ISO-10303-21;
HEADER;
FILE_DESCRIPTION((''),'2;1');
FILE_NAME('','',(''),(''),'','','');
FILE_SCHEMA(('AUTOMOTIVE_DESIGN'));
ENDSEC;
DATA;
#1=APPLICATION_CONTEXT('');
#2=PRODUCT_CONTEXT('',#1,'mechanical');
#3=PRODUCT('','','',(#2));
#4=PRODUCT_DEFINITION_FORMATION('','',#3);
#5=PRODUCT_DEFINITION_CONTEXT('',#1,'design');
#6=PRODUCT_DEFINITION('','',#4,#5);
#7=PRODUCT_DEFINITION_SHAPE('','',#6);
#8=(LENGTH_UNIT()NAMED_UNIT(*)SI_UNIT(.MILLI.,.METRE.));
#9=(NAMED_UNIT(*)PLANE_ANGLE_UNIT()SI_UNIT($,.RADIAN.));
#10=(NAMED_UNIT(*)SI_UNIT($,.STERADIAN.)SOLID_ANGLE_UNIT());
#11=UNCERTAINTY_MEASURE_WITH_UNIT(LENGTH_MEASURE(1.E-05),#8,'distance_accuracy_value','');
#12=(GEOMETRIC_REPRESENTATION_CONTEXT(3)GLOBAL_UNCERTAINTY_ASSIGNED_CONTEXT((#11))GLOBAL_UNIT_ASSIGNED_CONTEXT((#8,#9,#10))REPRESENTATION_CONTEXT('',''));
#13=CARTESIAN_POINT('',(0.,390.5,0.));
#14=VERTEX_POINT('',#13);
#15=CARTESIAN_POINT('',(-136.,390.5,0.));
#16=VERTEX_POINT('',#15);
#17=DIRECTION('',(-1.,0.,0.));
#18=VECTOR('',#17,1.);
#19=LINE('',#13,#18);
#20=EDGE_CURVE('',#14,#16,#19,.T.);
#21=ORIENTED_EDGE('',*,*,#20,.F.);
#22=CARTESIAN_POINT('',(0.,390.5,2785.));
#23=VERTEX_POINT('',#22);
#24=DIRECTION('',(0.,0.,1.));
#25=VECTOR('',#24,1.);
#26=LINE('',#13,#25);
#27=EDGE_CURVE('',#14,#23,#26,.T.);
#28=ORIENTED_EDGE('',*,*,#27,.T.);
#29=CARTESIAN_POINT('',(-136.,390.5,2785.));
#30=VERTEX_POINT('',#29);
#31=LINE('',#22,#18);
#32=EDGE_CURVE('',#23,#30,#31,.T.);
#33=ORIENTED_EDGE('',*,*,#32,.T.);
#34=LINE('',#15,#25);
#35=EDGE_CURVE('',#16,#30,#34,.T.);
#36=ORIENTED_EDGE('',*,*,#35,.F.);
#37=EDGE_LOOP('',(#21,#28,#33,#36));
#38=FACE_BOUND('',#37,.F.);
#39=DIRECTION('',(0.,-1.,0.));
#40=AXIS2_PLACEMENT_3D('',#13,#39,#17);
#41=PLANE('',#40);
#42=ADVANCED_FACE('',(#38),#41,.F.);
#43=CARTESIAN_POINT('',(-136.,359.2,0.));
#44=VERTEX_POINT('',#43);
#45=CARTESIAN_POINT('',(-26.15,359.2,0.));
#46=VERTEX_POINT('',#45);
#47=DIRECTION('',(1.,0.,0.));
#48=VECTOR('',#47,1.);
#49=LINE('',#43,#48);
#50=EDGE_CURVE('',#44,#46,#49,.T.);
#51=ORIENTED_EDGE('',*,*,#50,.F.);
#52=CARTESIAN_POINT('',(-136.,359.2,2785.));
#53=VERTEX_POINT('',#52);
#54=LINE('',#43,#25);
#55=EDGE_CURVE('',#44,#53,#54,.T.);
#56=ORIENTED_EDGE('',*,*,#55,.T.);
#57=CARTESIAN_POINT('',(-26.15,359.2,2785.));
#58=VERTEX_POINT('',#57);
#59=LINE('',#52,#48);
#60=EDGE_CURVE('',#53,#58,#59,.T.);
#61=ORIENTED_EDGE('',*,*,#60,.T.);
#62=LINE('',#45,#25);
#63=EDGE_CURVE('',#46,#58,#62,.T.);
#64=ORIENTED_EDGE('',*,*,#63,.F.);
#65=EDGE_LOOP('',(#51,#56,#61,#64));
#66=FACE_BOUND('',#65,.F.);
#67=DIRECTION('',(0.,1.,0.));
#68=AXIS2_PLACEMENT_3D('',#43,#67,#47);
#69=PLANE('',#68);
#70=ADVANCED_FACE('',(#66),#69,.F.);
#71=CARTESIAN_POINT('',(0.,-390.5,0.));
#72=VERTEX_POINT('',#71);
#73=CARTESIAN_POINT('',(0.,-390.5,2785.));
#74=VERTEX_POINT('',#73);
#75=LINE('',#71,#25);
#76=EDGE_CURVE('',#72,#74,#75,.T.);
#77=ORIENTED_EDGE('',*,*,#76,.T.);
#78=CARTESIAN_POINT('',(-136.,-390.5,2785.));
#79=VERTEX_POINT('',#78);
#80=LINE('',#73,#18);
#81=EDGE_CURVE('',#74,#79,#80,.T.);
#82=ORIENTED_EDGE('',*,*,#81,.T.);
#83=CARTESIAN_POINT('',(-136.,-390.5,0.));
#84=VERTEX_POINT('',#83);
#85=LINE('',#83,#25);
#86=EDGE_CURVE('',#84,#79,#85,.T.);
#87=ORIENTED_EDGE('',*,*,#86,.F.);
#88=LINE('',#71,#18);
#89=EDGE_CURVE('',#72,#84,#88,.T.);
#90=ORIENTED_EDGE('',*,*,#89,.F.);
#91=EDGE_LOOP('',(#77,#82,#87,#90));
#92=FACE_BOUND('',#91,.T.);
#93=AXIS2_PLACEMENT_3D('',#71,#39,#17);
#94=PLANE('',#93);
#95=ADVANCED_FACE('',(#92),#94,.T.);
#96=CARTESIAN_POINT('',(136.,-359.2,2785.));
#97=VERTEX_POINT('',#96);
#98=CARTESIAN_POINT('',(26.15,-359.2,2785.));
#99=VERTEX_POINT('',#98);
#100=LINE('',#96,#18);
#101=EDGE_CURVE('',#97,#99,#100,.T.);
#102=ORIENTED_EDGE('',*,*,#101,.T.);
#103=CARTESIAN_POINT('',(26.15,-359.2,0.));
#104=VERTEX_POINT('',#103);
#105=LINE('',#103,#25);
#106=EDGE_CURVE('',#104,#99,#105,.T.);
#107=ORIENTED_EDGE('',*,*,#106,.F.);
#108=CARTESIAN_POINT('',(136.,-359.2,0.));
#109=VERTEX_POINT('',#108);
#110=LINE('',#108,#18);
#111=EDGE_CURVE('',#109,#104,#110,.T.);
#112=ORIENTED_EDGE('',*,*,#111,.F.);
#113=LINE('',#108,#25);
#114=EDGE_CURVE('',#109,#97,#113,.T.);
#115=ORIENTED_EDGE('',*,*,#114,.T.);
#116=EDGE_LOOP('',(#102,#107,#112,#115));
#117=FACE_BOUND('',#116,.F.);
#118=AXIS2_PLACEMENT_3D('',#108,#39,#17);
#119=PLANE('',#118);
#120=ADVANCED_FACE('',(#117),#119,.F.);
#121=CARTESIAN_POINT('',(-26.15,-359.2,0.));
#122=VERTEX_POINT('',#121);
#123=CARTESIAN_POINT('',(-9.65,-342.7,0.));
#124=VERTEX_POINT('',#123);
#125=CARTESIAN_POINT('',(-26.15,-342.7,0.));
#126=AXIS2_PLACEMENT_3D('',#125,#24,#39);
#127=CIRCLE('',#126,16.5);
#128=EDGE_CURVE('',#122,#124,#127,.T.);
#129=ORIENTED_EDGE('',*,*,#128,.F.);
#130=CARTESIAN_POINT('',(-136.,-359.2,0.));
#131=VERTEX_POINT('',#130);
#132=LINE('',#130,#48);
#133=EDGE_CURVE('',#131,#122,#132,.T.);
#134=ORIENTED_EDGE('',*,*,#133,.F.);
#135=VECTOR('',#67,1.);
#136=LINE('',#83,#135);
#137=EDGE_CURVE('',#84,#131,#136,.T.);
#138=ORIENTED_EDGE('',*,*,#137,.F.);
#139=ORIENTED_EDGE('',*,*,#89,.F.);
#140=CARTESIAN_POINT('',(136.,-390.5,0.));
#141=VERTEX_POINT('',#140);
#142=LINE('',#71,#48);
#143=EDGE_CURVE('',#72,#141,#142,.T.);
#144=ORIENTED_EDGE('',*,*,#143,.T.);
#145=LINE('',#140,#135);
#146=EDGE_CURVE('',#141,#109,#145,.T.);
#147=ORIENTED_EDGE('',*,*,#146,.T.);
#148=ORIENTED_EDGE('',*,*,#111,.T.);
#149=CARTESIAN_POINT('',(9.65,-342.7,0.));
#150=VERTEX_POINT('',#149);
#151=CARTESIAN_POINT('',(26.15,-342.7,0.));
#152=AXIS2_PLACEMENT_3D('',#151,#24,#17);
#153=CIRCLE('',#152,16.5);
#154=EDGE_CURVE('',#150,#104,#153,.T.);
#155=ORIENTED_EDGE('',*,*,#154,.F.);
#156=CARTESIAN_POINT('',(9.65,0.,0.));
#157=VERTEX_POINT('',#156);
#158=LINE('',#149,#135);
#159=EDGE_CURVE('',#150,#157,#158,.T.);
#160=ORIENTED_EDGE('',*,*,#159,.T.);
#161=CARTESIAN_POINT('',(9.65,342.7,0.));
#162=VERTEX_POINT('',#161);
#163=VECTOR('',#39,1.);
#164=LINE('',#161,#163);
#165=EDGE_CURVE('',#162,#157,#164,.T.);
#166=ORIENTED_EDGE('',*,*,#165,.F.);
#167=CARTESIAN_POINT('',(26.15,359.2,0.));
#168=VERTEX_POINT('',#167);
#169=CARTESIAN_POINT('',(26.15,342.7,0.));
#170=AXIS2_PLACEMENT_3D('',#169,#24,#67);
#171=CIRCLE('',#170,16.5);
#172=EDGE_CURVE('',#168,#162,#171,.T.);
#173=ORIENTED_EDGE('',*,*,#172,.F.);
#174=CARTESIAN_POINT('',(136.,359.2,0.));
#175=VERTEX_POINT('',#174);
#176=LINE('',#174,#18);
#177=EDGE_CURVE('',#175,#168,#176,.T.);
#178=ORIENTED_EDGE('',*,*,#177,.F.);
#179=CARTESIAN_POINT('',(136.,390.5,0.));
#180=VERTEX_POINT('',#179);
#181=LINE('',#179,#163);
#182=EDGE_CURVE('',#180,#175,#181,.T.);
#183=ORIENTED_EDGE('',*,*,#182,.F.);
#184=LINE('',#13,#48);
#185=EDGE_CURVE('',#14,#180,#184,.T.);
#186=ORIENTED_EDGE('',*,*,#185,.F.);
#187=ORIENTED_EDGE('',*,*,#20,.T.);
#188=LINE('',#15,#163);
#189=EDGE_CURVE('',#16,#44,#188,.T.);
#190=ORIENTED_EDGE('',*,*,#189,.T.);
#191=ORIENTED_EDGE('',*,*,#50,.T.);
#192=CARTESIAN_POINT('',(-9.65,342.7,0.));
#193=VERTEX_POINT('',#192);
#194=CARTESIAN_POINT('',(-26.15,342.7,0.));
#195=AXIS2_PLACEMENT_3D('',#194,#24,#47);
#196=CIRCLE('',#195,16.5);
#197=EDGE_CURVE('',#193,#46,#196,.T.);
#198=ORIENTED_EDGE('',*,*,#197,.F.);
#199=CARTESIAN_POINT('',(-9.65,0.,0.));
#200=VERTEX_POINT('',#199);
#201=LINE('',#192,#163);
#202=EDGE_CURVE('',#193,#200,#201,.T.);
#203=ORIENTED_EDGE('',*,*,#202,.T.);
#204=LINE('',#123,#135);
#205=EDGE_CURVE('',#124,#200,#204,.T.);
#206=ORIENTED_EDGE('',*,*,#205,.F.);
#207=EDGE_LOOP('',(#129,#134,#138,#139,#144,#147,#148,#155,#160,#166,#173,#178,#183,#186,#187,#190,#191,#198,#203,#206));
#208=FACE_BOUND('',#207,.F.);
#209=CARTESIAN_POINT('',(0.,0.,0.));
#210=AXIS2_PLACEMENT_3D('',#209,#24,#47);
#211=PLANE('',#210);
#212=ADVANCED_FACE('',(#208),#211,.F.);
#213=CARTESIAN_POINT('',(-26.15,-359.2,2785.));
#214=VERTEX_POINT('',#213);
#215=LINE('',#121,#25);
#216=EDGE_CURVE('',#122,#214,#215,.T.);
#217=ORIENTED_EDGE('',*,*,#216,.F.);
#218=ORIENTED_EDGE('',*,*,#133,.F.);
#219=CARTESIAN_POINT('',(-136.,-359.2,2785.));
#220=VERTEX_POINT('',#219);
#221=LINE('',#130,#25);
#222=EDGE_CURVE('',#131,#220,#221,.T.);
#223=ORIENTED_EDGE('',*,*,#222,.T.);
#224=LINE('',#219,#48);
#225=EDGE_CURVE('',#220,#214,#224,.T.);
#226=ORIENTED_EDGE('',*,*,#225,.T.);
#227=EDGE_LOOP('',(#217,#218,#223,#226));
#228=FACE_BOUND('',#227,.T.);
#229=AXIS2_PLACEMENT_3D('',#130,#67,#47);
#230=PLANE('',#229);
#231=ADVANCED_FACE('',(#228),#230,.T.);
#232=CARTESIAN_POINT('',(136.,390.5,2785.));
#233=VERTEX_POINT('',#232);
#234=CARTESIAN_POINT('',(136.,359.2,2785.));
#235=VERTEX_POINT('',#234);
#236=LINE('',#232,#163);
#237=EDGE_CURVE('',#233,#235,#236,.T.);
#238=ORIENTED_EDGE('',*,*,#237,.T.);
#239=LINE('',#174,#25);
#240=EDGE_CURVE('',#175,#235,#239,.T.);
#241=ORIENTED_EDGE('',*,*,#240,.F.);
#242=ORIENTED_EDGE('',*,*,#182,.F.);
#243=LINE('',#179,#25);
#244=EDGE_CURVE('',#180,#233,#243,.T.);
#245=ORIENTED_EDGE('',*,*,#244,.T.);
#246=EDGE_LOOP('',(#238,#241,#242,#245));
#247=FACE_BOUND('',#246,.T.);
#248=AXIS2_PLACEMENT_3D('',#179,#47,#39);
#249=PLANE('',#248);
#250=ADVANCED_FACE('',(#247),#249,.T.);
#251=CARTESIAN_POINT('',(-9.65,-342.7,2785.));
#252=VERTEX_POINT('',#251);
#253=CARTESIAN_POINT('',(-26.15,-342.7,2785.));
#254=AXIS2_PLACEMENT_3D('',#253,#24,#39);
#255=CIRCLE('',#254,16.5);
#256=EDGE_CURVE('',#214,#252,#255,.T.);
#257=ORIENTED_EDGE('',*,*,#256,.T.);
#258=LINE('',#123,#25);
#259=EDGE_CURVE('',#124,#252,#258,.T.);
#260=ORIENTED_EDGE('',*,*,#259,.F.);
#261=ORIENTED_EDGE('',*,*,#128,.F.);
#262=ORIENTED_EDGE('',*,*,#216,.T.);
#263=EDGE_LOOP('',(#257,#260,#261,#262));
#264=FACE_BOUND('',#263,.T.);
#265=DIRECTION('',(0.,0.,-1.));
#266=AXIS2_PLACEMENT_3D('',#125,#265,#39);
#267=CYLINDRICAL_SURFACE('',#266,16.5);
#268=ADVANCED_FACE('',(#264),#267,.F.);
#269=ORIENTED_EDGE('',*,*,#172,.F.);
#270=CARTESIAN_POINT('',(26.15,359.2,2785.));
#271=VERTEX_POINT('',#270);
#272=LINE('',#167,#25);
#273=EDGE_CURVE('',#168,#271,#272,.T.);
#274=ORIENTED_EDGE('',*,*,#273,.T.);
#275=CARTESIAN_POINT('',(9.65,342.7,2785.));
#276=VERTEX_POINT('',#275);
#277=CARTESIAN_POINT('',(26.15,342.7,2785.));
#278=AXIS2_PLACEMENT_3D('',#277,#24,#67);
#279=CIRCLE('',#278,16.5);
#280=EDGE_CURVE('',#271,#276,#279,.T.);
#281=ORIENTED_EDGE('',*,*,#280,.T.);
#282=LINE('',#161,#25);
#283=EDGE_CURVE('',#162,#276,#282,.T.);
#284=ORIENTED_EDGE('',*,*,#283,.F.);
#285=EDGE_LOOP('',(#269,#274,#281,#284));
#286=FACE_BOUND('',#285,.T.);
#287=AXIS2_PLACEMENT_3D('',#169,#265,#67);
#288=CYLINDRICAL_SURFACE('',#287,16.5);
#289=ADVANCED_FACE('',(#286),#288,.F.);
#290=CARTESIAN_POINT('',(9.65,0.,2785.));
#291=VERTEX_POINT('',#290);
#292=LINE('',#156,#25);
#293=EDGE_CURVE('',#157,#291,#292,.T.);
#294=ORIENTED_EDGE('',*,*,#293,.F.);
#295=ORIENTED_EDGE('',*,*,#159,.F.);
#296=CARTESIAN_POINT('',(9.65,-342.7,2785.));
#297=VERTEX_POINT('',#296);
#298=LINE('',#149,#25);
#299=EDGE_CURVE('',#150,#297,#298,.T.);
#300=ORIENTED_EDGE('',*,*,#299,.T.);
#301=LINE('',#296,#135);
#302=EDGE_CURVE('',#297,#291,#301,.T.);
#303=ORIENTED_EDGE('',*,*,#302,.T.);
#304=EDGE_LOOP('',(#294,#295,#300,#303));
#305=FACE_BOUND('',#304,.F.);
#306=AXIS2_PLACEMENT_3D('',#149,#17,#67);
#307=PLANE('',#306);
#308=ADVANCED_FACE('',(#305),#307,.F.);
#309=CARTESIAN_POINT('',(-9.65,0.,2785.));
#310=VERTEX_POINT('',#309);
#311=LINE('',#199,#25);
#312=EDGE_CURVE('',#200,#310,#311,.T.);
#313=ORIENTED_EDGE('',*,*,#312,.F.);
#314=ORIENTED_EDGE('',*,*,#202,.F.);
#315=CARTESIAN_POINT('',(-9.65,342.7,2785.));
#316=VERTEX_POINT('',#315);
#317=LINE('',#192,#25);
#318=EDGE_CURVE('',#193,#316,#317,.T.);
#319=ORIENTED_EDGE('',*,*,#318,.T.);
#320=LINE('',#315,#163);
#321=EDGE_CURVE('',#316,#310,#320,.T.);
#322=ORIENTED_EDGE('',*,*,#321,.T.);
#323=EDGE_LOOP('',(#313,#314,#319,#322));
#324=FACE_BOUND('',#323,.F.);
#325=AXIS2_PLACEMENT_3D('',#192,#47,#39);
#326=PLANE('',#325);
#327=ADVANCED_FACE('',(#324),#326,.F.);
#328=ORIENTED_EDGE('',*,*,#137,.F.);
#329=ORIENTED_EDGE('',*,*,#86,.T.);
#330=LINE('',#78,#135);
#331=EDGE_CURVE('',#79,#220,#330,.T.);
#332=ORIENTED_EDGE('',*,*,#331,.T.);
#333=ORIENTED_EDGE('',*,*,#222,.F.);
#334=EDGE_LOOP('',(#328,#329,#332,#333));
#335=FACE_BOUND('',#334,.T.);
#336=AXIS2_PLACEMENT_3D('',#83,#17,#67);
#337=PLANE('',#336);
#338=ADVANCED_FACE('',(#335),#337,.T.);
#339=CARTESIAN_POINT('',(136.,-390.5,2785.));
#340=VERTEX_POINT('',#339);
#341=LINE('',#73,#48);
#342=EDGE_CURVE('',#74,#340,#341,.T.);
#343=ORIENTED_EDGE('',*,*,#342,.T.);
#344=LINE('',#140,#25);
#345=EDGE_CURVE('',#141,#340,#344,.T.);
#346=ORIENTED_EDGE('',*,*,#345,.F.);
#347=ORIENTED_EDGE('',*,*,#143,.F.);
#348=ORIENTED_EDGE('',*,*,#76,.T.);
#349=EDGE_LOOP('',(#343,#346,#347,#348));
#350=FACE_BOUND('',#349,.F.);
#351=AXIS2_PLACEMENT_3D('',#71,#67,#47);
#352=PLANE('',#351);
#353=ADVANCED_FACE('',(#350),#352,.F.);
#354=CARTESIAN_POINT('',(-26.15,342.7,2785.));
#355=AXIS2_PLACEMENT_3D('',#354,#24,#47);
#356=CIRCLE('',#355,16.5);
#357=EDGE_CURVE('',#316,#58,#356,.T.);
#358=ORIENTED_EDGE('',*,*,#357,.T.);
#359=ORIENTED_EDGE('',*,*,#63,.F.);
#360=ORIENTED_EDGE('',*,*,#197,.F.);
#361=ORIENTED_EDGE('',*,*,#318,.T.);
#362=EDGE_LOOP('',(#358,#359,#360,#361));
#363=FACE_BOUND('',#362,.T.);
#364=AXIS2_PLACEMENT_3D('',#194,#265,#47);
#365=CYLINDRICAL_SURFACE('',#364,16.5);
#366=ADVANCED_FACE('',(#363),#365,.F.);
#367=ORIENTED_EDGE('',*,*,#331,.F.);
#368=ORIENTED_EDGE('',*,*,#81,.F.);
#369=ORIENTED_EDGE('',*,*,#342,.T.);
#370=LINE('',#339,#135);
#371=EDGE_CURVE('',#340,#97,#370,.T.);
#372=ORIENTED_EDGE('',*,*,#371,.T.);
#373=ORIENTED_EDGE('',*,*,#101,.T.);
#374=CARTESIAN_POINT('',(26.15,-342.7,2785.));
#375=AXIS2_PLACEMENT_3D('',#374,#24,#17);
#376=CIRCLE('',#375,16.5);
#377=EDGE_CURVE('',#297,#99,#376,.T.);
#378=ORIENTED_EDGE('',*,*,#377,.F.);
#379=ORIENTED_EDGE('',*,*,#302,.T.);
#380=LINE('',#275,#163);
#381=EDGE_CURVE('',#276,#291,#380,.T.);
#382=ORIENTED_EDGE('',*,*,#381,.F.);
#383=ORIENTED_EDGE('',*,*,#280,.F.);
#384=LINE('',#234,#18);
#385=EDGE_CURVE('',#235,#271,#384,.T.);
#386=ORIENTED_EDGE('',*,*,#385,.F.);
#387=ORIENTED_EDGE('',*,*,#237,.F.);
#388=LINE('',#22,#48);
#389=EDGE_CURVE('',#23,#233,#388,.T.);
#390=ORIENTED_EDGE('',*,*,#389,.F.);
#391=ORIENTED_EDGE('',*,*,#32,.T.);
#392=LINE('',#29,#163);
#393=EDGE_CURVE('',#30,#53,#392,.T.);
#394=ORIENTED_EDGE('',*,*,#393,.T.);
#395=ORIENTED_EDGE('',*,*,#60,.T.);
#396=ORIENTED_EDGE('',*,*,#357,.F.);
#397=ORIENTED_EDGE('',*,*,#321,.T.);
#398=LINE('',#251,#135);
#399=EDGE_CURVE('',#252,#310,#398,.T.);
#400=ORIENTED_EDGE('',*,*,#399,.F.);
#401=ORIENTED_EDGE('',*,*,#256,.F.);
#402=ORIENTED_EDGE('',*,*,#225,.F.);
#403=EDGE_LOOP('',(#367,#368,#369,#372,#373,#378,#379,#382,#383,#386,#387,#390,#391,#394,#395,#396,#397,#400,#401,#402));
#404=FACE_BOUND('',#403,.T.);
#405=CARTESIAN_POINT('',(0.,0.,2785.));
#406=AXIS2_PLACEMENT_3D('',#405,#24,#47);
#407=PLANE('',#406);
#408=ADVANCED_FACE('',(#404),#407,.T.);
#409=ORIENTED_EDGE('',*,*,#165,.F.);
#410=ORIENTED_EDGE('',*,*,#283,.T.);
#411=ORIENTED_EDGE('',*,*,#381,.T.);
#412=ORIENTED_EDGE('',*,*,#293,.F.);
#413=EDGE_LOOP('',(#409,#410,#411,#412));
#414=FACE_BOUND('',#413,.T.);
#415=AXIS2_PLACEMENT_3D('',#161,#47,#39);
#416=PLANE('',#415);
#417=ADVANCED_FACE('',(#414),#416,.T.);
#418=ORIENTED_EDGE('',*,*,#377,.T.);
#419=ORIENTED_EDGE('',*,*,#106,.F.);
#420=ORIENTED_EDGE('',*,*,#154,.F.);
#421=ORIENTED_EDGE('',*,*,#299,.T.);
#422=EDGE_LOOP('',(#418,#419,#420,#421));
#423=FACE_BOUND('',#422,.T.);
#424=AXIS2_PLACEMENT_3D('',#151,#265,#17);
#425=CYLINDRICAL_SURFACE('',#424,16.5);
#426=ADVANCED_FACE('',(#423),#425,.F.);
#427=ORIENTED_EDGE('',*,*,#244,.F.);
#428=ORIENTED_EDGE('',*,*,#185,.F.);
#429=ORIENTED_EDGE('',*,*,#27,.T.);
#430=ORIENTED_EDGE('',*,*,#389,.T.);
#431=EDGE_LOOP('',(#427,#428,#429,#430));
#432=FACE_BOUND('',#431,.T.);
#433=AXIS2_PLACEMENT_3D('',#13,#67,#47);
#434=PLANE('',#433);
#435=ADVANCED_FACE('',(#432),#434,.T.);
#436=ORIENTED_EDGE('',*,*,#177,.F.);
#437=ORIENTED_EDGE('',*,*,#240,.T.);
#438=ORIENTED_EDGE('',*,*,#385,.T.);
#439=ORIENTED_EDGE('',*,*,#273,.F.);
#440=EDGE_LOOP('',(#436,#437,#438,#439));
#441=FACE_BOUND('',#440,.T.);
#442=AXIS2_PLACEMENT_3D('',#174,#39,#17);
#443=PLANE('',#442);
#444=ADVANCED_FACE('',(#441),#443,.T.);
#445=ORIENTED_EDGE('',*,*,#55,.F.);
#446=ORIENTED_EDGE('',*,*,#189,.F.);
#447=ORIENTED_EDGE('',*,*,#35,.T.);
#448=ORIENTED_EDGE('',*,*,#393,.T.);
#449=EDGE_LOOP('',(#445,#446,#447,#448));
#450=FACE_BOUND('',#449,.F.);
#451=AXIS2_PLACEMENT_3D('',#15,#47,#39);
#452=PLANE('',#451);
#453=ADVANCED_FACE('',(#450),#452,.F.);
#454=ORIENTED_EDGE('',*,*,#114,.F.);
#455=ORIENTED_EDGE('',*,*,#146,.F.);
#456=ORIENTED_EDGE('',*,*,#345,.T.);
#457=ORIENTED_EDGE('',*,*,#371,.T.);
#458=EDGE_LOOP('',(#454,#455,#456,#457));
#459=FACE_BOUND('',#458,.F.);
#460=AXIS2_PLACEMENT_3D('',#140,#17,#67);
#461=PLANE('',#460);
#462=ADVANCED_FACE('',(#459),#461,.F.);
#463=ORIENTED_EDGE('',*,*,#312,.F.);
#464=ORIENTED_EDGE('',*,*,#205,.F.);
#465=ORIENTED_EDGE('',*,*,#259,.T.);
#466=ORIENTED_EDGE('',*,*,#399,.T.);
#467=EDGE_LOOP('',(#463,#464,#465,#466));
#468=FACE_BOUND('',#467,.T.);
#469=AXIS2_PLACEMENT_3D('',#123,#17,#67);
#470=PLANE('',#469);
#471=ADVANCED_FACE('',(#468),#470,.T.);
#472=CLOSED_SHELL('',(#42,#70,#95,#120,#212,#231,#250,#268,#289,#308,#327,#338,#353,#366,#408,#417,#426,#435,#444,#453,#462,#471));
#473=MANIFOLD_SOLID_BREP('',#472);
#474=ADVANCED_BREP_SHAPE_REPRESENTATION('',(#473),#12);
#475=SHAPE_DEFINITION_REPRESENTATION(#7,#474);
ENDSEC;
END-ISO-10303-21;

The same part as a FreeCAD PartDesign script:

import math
import FreeCAD as App
import Part
import Sketcher
from FreeCAD import Vector
Q = App.Units.Quantity

doc = App.newDocument("Part")
body = doc.addObject("PartDesign::Body", "Body")

# Sketch on XY plane
sketch1 = doc.addObject("Sketcher::SketchObject", "Sketch")
body.addObject(sketch1)
sketch1.AttachmentSupport = (doc.XY_Plane, [""])
sketch1.MapMode = "FlatFace"
sketch1.addGeometry(Part.LineSegment(Vector(-136, -359.2, 0), Vector(-136, -390.5, 0)), False)
sketch1.addGeometry(Part.LineSegment(Vector(-136, -390.5, 0), Vector(136, -390.5, 0)), False)
sketch1.addGeometry(Part.LineSegment(Vector(136, -390.5, 0), Vector(136, -359.2, 0)), False)
sketch1.addGeometry(Part.LineSegment(Vector(136, -359.2, 0), Vector(26.15, -359.2, 0)), False)
sketch1.addGeometry(Part.ArcOfCircle(Part.Circle(Vector(26.15, -342.7, 0), Vector(0, 0, 1), 16.5), math.radians(180), math.radians(270)), False)
sketch1.addGeometry(Part.LineSegment(Vector(9.65, -342.7, 0), Vector(9.65, 342.7, 0)), False)
sketch1.addGeometry(Part.ArcOfCircle(Part.Circle(Vector(26.15, 342.7, 0), Vector(0, 0, 1), 16.5), math.radians(90), math.radians(180)), False)
sketch1.addGeometry(Part.LineSegment(Vector(26.15, 359.2, 0), Vector(136, 359.2, 0)), False)
sketch1.addGeometry(Part.LineSegment(Vector(136, 359.2, 0), Vector(136, 390.5, 0)), False)
sketch1.addGeometry(Part.LineSegment(Vector(136, 390.5, 0), Vector(-136, 390.5, 0)), False)
sketch1.addGeometry(Part.LineSegment(Vector(-136, 390.5, 0), Vector(-136, 359.2, 0)), False)
sketch1.addGeometry(Part.LineSegment(Vector(-136, 359.2, 0), Vector(-26.15, 359.2, 0)), False)
sketch1.addGeometry(Part.ArcOfCircle(Part.Circle(Vector(-26.15, 342.7, 0), Vector(0, 0, 1), 16.5), math.radians(0), math.radians(90)), False)
sketch1.addGeometry(Part.LineSegment(Vector(-9.65, 342.7, 0), Vector(-9.65, -342.7, 0)), False)
sketch1.addGeometry(Part.ArcOfCircle(Part.Circle(Vector(-26.15, -342.7, 0), Vector(0, 0, 1), 16.5), math.radians(-90), math.radians(0)), False)
sketch1.addGeometry(Part.LineSegment(Vector(-26.15, -359.2, 0), Vector(-136, -359.2, 0)), False)
sketch1.addConstraint(Sketcher.Constraint("Coincident", 0, 2, 1, 1))
sketch1.addConstraint(Sketcher.Constraint("Coincident", 1, 2, 2, 1))
sketch1.addConstraint(Sketcher.Constraint("Coincident", 2, 2, 3, 1))
sketch1.addConstraint(Sketcher.Constraint("Tangent", 3, 2, 4, 2))
sketch1.addConstraint(Sketcher.Constraint("Tangent", 4, 1, 5, 1))
sketch1.addConstraint(Sketcher.Constraint("Tangent", 5, 2, 6, 2))
sketch1.addConstraint(Sketcher.Constraint("Tangent", 6, 1, 7, 1))
sketch1.addConstraint(Sketcher.Constraint("Coincident", 7, 2, 8, 1))
sketch1.addConstraint(Sketcher.Constraint("Coincident", 8, 2, 9, 1))
sketch1.addConstraint(Sketcher.Constraint("Coincident", 9, 2, 10, 1))
sketch1.addConstraint(Sketcher.Constraint("Coincident", 10, 2, 11, 1))
sketch1.addConstraint(Sketcher.Constraint("Tangent", 11, 2, 12, 2))
sketch1.addConstraint(Sketcher.Constraint("Tangent", 12, 1, 13, 1))
sketch1.addConstraint(Sketcher.Constraint("Tangent", 13, 2, 14, 2))
sketch1.addConstraint(Sketcher.Constraint("Tangent", 14, 1, 15, 1))
sketch1.addConstraint(Sketcher.Constraint("Coincident", 15, 2, 0, 1))
sketch1.addConstraint(Sketcher.Constraint("Vertical", 0))
sketch1.addConstraint(Sketcher.Constraint("Horizontal", 1))
sketch1.addConstraint(Sketcher.Constraint("Vertical", 2))
sketch1.addConstraint(Sketcher.Constraint("Horizontal", 3))
sketch1.addConstraint(Sketcher.Constraint("Vertical", 5))
sketch1.addConstraint(Sketcher.Constraint("Horizontal", 7))
sketch1.addConstraint(Sketcher.Constraint("Vertical", 8))
sketch1.addConstraint(Sketcher.Constraint("Horizontal", 9))
sketch1.addConstraint(Sketcher.Constraint("Vertical", 10))
sketch1.addConstraint(Sketcher.Constraint("Horizontal", 11))
sketch1.addConstraint(Sketcher.Constraint("Vertical", 13))
sketch1.addConstraint(Sketcher.Constraint("Horizontal", 15))
sketch1.addConstraint(Sketcher.Constraint("Equal", 4, 6))
sketch1.addConstraint(Sketcher.Constraint("Equal", 6, 12))
sketch1.addConstraint(Sketcher.Constraint("Equal", 12, 14))
sketch1.addConstraint(Sketcher.Constraint("Symmetric", 4, 3, 12, 3, -1, 1))
sketch1.addConstraint(Sketcher.Constraint("Symmetric", 0, 2, 8, 2, -1, 1))
sketch1.addConstraint(Sketcher.Constraint("Symmetric", 7, 2, 10, 2, -2))
sketch1.addConstraint(Sketcher.Constraint("Symmetric", 2, 2, 15, 2, -2))
sketch1.addConstraint(Sketcher.Constraint("Radius", 4, Q("16.5 mm")))
sketch1.addConstraint(Sketcher.Constraint("DistanceY", 0, 2, 0, 1, Q("31.3 mm")))
sketch1.addConstraint(Sketcher.Constraint("DistanceX", 0, 2, -1, 1, Q("136 mm")))
sketch1.addConstraint(Sketcher.Constraint("DistanceY", 0, 2, -1, 1, Q("390.5 mm")))
sketch1.addConstraint(Sketcher.Constraint("DistanceX", -1, 1, 4, 1, Q("9.65 mm")))
pad1 = doc.addObject("PartDesign::Pad", "Pad")
body.addObject(pad1)
pad1.Profile = sketch1
pad1.Length = 2785

doc.recompute()
